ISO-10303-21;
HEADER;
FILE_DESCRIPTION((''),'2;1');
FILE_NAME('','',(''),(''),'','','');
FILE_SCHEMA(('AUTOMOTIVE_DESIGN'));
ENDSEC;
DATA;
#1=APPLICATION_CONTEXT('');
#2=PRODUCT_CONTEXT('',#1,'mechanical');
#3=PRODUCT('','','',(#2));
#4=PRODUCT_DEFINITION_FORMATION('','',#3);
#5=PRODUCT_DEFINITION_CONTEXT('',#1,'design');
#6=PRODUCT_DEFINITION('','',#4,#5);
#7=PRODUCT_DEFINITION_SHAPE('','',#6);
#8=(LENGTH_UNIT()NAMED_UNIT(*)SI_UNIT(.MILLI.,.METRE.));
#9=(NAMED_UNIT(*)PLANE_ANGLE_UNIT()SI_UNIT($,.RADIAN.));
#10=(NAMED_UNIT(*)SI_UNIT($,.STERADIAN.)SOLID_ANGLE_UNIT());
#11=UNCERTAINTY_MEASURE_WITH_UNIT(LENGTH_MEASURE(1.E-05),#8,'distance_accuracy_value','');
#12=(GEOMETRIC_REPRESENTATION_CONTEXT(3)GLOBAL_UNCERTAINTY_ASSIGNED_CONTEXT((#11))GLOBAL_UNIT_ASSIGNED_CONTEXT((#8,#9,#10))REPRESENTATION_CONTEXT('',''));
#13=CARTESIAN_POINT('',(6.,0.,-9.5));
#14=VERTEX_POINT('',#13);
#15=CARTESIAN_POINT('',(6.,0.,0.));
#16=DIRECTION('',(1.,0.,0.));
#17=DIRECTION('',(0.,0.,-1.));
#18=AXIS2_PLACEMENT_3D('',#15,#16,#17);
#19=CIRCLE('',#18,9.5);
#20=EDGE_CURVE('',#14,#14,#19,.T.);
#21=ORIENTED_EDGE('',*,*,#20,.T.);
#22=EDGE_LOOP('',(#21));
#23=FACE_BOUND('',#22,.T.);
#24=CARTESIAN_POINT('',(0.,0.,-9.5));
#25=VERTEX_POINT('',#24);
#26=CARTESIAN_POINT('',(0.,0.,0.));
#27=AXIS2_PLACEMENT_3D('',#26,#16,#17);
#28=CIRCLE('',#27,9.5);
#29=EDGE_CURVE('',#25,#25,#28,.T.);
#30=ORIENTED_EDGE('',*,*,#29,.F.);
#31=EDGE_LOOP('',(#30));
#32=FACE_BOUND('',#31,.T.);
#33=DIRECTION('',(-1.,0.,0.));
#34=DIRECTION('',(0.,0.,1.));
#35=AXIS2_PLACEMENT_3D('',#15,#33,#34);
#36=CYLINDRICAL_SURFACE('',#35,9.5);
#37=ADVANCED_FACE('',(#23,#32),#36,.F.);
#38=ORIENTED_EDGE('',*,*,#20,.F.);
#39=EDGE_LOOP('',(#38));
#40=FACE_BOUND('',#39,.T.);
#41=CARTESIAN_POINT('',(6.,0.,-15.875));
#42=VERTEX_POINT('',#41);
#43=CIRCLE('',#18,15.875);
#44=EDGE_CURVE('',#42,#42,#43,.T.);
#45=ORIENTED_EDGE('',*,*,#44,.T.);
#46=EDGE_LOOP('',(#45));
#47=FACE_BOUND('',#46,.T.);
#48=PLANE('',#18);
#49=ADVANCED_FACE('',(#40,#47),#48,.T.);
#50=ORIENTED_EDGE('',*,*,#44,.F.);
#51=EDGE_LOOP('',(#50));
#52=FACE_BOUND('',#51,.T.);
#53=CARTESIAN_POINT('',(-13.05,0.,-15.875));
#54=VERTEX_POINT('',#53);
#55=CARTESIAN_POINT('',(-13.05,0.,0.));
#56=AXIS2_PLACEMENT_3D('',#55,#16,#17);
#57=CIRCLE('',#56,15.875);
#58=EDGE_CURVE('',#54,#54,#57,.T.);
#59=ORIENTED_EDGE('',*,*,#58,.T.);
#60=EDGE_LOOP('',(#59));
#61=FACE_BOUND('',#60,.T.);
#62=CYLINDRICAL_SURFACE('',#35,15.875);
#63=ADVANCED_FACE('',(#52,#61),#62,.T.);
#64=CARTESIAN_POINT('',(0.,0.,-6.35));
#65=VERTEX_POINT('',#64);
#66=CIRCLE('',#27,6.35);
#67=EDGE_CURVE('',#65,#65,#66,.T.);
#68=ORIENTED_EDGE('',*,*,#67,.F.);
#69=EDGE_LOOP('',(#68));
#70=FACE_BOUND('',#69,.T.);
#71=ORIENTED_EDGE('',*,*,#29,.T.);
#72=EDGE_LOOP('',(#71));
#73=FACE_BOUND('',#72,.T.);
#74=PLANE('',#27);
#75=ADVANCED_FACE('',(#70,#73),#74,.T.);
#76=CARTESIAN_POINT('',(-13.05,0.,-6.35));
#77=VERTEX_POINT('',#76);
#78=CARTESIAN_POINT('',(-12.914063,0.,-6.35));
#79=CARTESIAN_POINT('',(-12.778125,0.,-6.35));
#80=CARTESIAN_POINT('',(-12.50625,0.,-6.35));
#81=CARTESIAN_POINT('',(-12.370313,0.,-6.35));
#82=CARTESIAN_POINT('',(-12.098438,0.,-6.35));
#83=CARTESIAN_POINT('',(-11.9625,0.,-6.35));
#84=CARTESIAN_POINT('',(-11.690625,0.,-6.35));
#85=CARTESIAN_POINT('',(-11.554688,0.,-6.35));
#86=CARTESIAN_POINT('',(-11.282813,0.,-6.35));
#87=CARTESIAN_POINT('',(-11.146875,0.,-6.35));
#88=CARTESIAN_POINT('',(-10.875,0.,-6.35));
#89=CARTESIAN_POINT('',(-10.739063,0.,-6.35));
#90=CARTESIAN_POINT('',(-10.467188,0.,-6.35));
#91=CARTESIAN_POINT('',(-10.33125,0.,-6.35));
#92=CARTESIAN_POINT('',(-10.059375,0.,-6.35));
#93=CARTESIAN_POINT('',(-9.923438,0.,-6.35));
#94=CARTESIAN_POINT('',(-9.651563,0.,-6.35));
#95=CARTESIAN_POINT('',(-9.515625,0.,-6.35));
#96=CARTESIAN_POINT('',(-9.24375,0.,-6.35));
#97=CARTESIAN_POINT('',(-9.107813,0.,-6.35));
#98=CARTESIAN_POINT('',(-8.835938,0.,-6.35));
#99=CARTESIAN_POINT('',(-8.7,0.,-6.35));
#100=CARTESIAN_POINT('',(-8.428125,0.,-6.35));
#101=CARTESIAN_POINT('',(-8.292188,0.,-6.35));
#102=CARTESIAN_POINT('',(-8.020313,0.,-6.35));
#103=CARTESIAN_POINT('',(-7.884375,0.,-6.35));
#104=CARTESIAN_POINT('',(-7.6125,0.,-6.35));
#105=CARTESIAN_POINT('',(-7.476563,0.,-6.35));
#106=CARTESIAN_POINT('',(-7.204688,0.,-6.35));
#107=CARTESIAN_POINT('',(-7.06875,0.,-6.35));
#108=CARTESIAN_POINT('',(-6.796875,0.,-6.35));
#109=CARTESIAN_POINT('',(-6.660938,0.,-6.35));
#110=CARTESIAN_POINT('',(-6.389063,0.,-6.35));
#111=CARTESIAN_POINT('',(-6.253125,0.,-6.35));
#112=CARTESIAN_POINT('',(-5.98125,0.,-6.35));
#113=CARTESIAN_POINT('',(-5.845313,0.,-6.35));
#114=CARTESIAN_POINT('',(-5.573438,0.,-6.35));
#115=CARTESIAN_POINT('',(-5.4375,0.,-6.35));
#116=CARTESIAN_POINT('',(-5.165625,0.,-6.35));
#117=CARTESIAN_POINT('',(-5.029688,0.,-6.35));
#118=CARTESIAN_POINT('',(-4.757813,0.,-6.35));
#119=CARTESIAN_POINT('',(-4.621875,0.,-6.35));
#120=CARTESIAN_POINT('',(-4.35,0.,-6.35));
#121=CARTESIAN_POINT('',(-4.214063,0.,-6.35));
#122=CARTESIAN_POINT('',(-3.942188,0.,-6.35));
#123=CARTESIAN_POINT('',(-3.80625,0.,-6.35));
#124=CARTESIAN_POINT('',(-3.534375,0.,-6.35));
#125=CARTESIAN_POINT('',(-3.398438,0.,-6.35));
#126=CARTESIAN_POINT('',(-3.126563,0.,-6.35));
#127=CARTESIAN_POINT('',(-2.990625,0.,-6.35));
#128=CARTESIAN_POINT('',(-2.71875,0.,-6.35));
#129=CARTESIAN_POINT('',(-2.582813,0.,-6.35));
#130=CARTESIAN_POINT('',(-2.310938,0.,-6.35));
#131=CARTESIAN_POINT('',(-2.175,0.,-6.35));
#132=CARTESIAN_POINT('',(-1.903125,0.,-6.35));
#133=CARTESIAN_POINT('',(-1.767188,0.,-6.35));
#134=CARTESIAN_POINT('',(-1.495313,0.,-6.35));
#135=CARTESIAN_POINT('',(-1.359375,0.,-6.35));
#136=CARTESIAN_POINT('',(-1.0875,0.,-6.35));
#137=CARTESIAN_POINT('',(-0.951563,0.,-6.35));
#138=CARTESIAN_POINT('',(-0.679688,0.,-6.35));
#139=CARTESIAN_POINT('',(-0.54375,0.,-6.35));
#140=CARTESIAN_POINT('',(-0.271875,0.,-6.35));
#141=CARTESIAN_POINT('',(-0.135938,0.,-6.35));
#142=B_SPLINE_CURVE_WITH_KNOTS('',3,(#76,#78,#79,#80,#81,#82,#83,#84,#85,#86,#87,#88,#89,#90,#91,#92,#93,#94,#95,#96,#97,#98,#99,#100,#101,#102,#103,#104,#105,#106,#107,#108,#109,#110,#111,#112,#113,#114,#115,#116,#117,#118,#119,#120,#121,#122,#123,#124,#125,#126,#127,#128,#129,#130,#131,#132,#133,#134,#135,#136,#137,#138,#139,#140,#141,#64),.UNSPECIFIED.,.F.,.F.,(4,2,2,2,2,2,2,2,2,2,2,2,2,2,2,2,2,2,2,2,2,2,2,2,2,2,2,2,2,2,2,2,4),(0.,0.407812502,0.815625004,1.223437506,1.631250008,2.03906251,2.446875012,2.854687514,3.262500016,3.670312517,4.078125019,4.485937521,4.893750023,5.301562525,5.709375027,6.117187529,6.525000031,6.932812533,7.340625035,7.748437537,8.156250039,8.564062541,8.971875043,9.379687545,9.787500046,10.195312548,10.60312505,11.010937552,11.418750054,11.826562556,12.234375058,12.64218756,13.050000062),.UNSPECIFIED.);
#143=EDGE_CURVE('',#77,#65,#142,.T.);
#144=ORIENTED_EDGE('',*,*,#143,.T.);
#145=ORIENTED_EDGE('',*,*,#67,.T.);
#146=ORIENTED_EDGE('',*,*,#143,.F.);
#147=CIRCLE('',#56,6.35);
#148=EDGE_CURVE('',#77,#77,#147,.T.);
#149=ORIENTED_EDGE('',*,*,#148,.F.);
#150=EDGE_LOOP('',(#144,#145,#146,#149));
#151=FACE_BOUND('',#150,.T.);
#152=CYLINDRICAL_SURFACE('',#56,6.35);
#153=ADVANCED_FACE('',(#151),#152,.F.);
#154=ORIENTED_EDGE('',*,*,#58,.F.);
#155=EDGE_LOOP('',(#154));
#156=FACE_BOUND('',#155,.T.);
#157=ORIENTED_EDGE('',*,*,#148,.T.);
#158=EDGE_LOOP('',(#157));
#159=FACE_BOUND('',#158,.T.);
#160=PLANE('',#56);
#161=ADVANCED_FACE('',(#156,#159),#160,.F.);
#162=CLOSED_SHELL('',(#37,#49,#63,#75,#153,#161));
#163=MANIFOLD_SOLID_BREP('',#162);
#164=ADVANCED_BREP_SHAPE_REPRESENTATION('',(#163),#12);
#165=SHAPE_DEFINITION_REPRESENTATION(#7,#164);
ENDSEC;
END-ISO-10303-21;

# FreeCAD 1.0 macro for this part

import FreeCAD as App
import Part
import Sketcher
from FreeCAD import Vector

doc = App.newDocument("Part")
params = doc.addObject("Spreadsheet::Sheet", "Params")
for row, (alias, value) in enumerate([
    ("sketch1_diameter", "19 mm"),
    ("sketch1_diameter2", "31.75 mm"),
    ("pad1_length", "6 mm"),
    ("sketch2_diameter", "12.7 mm"),
    ("sketch2_diameter2", "31.75 mm"),
    ("pad2_length", "13.05 mm"),
], start=1):
    params.set(f"A{row}", alias)
    params.set(f"B{row}", "=" + value)
    params.setAlias(f"B{row}", alias)

body = doc.addObject("PartDesign::Body", "Body")

# Sketch on YZ plane
sketch1 = body.newObject("Sketcher::SketchObject", "Sketch")
sketch1.AttachmentSupport = (doc.getObject("YZ_Plane"), [""])
sketch1.MapMode = "FlatFace"
sketch1.addGeometry([
    Part.Circle(Vector(0, 0, 0), Vector(0, 0, 1), 16),
    Part.Circle(Vector(0, 0, 0), Vector(0, 0, 1), 10),
], False)
sketch1.addConstraint([
    Sketcher.Constraint("Coincident", 0, 3, -1, 1),
    Sketcher.Constraint("Coincident", 1, 3, -1, 1),
    Sketcher.Constraint("Diameter", 1, 19.0),
    Sketcher.Constraint("Diameter", 0, 31.75),
])
sketch1.setExpression("Constraints[2]", "Params.sketch1_diameter")
sketch1.setExpression("Constraints[3]", "Params.sketch1_diameter2")
pad1 = body.newObject("PartDesign::Pad", "Pad")
pad1.Profile = sketch1
pad1.setExpression("Length", "Params.pad1_length")

# Sketch on YZ plane
sketch2 = body.newObject("Sketcher::SketchObject", "Sketch001")
sketch2.AttachmentSupport = (doc.getObject("YZ_Plane"), [""])
sketch2.MapMode = "FlatFace"
sketch2.AttachmentOffset = App.Placement(Vector(0, 0, -13.05), App.Rotation())
sketch2.addGeometry([
    Part.Circle(Vector(0, 0, 0), Vector(0, 0, 1), 16),
    Part.Circle(Vector(0, 0, 0), Vector(0, 0, 1), 6),
], False)
sketch2.addConstraint([
    Sketcher.Constraint("Coincident", 0, 3, -1, 1),
    Sketcher.Constraint("Coincident", 1, 3, -1, 1),
    Sketcher.Constraint("Diameter", 1, 12.7),
    Sketcher.Constraint("Diameter", 0, 31.75),
])
sketch2.setExpression("Constraints[2]", "Params.sketch2_diameter")
sketch2.setExpression("Constraints[3]", "Params.sketch2_diameter2")
pad2 = body.newObject("PartDesign::Pad", "Pad001")
pad2.Profile = sketch2
pad2.setExpression("Length", "Params.pad2_length")

doc.recompute()
